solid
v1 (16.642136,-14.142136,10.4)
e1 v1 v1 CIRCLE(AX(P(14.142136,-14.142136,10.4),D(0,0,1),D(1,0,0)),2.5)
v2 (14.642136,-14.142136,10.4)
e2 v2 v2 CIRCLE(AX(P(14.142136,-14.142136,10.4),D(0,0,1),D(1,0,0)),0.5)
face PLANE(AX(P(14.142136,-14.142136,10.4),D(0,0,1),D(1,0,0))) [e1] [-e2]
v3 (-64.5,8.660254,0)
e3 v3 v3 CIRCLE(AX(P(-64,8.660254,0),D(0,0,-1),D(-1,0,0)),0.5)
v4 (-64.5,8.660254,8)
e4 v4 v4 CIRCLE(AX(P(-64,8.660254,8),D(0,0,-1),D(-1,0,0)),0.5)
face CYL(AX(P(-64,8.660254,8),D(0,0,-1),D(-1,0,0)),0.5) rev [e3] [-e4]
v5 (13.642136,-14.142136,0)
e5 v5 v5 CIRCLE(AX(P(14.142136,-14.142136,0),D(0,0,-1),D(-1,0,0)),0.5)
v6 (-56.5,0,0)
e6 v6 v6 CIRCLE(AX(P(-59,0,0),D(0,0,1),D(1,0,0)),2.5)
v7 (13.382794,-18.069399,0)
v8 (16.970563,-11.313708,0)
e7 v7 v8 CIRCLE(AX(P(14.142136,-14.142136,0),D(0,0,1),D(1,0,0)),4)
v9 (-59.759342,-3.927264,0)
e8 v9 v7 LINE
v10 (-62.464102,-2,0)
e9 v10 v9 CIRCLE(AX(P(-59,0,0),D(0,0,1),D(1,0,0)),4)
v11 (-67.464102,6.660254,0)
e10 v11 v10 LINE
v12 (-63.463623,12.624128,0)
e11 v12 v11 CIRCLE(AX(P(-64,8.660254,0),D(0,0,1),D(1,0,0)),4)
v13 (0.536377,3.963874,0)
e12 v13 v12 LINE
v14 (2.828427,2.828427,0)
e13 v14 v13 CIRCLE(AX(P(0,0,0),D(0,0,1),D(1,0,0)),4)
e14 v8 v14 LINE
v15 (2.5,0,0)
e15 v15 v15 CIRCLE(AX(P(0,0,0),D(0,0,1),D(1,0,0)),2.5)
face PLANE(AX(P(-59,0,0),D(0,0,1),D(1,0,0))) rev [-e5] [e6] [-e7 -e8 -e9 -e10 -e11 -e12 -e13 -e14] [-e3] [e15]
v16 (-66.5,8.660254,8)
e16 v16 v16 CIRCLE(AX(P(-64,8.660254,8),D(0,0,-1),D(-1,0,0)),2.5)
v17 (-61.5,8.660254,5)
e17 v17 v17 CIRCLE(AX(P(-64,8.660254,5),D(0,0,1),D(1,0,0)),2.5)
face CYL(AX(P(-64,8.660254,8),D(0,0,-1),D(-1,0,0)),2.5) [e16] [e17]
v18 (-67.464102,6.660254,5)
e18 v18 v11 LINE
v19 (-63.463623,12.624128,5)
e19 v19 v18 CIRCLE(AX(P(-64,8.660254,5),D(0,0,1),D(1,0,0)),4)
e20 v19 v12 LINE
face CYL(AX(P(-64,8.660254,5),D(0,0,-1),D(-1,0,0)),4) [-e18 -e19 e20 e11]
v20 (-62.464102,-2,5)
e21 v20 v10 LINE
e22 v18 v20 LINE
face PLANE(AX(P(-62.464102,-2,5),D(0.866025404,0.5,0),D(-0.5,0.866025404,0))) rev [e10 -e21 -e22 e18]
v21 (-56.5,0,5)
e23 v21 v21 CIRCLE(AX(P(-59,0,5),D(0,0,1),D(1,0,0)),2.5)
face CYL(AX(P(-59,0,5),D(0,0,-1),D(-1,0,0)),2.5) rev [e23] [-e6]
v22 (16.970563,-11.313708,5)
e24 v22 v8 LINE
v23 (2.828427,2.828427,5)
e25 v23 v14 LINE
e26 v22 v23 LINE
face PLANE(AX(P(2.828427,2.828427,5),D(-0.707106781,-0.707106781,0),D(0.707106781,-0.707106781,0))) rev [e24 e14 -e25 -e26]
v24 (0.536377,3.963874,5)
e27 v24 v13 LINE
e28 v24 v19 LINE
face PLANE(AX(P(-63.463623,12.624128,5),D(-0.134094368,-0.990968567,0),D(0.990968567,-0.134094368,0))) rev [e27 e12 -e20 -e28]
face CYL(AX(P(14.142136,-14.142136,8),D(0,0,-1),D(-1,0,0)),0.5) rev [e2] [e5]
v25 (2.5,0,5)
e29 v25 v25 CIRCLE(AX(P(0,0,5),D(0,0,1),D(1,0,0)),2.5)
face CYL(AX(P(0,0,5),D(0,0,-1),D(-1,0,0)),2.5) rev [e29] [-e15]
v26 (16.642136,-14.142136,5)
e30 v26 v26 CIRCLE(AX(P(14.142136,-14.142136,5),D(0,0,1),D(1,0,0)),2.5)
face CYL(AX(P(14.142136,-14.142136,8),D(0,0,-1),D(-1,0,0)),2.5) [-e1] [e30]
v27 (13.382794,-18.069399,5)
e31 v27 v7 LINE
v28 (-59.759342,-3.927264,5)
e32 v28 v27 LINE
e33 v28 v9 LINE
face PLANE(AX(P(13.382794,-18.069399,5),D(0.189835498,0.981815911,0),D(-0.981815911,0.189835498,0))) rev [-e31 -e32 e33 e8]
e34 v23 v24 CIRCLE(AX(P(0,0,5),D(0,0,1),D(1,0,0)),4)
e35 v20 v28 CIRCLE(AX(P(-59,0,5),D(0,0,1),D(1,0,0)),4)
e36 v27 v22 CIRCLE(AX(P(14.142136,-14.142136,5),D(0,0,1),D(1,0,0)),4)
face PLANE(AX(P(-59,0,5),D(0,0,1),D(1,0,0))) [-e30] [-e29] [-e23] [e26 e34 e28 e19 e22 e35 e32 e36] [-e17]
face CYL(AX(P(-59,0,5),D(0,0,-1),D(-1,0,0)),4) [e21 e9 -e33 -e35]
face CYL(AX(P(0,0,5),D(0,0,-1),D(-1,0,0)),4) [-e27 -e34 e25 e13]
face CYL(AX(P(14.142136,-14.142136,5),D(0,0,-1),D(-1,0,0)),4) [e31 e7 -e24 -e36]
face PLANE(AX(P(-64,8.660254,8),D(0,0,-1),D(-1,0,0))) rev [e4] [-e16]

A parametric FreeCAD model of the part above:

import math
import FreeCAD as App
import Part
import Sketcher

V = App.Vector
Q = App.Units.Quantity

doc = App.newDocument("Part")
params = doc.addObject("Spreadsheet::Sheet", "Params")
for row, (alias, value) in enumerate([
    ("sketch1_diameter", "5 mm"),
    ("sketch1_radius", "4 mm"),
    ("sketch1_length", "10 mm"),
    ("sketch1_length2", "20 mm"),
    ("pad1_length", "5 mm"),
    ("sketch2_diameter", "5 mm"),
    ("sketch2_diameter2", "1 mm"),
    ("pad2_length", "8 mm"),
    ("sketch3_diameter", "5 mm"),
    ("sketch3_diameter2", "1 mm"),
    ("pad3_length", "2.4 mm"),
], start=1):
    params.set(f"A{row}", alias)
    params.set(f"B{row}", "=" + value)
    params.setAlias(f"B{row}", alias)

body = doc.addObject("PartDesign::Body", "Body")

sketch1 = doc.addObject("Sketcher::SketchObject", "Sketch")
body.addObject(sketch1)
sketch1.AttachmentSupport = (doc.XY_Plane, [""])
sketch1.MapMode = "FlatFace"
sketch1.addGeometry([
    Part.LineSegment(V(0.536377, 3.963874, 0), V(-63.463623, 12.624128, 0)),
    Part.ArcOfCircle(Part.Circle(V(-64, 8.660254, 0), V(0, 0, 1), 4), math.radians(82.293745), math.radians(210)),
    Part.LineSegment(V(-67.464102, 6.660254, 0), V(-62.464102, -2, 0)),
    Part.ArcOfCircle(Part.Circle(V(-59, 0, 0), V(0, 0, 1), 4), math.radians(-150), math.radians(-100.943184)),
    Part.LineSegment(V(-59.759342, -3.927264, 0), V(13.382794, -18.069399, 0)),
    Part.ArcOfCircle(Part.Circle(V(14.142136, -14.142136, 0), V(0, 0, 1), 4), math.radians(-100.943184), math.radians(45)),
    Part.LineSegment(V(16.970563, -11.313708, 0), V(2.828427, 2.828427, 0)),
    Part.ArcOfCircle(Part.Circle(V(0, 0, 0), V(0, 0, 1), 4), math.radians(45), math.radians(82.293745)),
    Part.Circle(V(14.142136, -14.142136, 0), V(0, 0, 1), 2.5),
    Part.Circle(V(0, 0, 0), V(0, 0, 1), 2.5),
    Part.Circle(V(-59, 0, 0), V(0, 0, 1), 2.5),
    Part.Circle(V(-64, 8.660254, 0), V(0, 0, 1), 2.5),
], False)
sketch1.addConstraint([
    Sketcher.Constraint("Tangent", 0, 2, 1, 1),
    Sketcher.Constraint("Tangent", 1, 2, 2, 1),
    Sketcher.Constraint("Tangent", 2, 2, 3, 1),
    Sketcher.Constraint("Tangent", 3, 2, 4, 1),
    Sketcher.Constraint("Tangent", 4, 2, 5, 1),
    Sketcher.Constraint("Tangent", 5, 2, 6, 1),
    Sketcher.Constraint("Tangent", 6, 2, 7, 1),
    Sketcher.Constraint("Tangent", 7, 2, 0, 1),
    Sketcher.Constraint("Coincident", 7, 3, -1, 1),
    Sketcher.Constraint("Coincident", 9, 3, -1, 1),
    Sketcher.Constraint("Coincident", 8, 3, 5, 3),
    Sketcher.Constraint("Coincident", 10, 3, 3, 3),
    Sketcher.Constraint("Coincident", 11, 3, 1, 3),
    Sketcher.Constraint("Equal", 1, 3),
    Sketcher.Constraint("Equal", 3, 5),
    Sketcher.Constraint("Equal", 5, 7),
    Sketcher.Constraint("Equal", 8, 9),
    Sketcher.Constraint("Equal", 9, 10),
    Sketcher.Constraint("Equal", 10, 11),
    Sketcher.Constraint("PointOnObject", 3, 3, -1),
    Sketcher.Constraint("Diameter", 8, Q("5 mm")),
    Sketcher.Constraint("Radius", 1, Q("4 mm")),
    Sketcher.Constraint("Angle", 2, Q("-60 deg")),
    Sketcher.Constraint("Angle", 6, Q("135 deg")),
    Sketcher.Constraint("Distance", 2, Q("10 mm")),
    Sketcher.Constraint("Distance", 6, Q("20 mm")),
    Sketcher.Constraint("DistanceX", 1, 3, -1, 1, Q("64 mm")),
])
sketch1.setExpression("Constraints[20]", "Params.sketch1_diameter")
sketch1.setExpression("Constraints[21]", "Params.sketch1_radius")
sketch1.setExpression("Constraints[24]", "Params.sketch1_length")
sketch1.setExpression("Constraints[25]", "Params.sketch1_length2")
pad1 = doc.addObject("PartDesign::Pad", "Pad")
body.addObject(pad1)
pad1.Profile = sketch1
pad1.setExpression("Length", "Params.pad1_length")

sketch2 = doc.addObject("Sketcher::SketchObject", "Sketch001")
body.addObject(sketch2)
sketch2.AttachmentSupport = (doc.XY_Plane, [""])
sketch2.MapMode = "FlatFace"
sketch2.addGeometry([
    Part.Circle(V(-64, 8.660254, 0), V(0, 0, 1), 2.5),
    Part.Circle(V(-64, 8.660254, 0), V(0, 0, 1), 0.5),
    Part.Circle(V(14.142136, -14.142136, 0), V(0, 0, 1), 2.5),
    Part.Circle(V(14.142136, -14.142136, 0), V(0, 0, 1), 0.5),
], False)
sketch2.addConstraint([
    Sketcher.Constraint("Coincident", 1, 3, 0, 3),
    Sketcher.Constraint("Coincident", 3, 3, 2, 3),
    Sketcher.Constraint("Equal", 0, 2),
    Sketcher.Constraint("Equal", 1, 3),
    Sketcher.Constraint("Diameter", 0, Q("5 mm")),
    Sketcher.Constraint("Diameter", 1, Q("1 mm")),
    Sketcher.Constraint("DistanceX", 0, 3, -1, 1, Q("64 mm")),
    Sketcher.Constraint("DistanceY", 2, 3, 0, 3, Q("22.80239 mm")),
    Sketcher.Constraint("DistanceY", -1, 1, 0, 3, Q("8.660254 mm")),
    Sketcher.Constraint("DistanceX", -1, 1, 2, 3, Q("14.142136 mm")),
])
sketch2.setExpression("Constraints[4]", "Params.sketch2_diameter")
sketch2.setExpression("Constraints[5]", "Params.sketch2_diameter2")
pad2 = doc.addObject("PartDesign::Pad", "Pad001")
body.addObject(pad2)
pad2.Profile = sketch2
pad2.setExpression("Length", "Params.pad2_length")

sketch3 = doc.addObject("Sketcher::SketchObject", "Sketch002")
body.addObject(sketch3)
sketch3.AttachmentSupport = (doc.XY_Plane, [""])
sketch3.MapMode = "FlatFace"
sketch3.AttachmentOffset = App.Placement(V(0, 0, 8), App.Rotation())
sketch3.addGeometry([
    Part.Circle(V(14.142136, -14.142136, 0), V(0, 0, 1), 2.5),
    Part.Circle(V(14.142136, -14.142136, 0), V(0, 0, 1), 0.5),
], False)
sketch3.addConstraint([
    Sketcher.Constraint("Coincident", 1, 3, 0, 3),
    Sketcher.Constraint("Diameter", 0, Q("5 mm")),
    Sketcher.Constraint("Diameter", 1, Q("1 mm")),
    Sketcher.Constraint("DistanceX", -1, 1, 0, 3, Q("14.142136 mm")),
    Sketcher.Constraint("DistanceY", 0, 3, -1, 1, Q("14.142136 mm")),
])
sketch3.setExpression("Constraints[1]", "Params.sketch3_diameter")
sketch3.setExpression("Constraints[2]", "Params.sketch3_diameter2")
pad3 = doc.addObject("PartDesign::Pad", "Pad002")
body.addObject(pad3)
pad3.Profile = sketch3
pad3.setExpression("Length", "Params.pad3_length")

doc.recompute()
